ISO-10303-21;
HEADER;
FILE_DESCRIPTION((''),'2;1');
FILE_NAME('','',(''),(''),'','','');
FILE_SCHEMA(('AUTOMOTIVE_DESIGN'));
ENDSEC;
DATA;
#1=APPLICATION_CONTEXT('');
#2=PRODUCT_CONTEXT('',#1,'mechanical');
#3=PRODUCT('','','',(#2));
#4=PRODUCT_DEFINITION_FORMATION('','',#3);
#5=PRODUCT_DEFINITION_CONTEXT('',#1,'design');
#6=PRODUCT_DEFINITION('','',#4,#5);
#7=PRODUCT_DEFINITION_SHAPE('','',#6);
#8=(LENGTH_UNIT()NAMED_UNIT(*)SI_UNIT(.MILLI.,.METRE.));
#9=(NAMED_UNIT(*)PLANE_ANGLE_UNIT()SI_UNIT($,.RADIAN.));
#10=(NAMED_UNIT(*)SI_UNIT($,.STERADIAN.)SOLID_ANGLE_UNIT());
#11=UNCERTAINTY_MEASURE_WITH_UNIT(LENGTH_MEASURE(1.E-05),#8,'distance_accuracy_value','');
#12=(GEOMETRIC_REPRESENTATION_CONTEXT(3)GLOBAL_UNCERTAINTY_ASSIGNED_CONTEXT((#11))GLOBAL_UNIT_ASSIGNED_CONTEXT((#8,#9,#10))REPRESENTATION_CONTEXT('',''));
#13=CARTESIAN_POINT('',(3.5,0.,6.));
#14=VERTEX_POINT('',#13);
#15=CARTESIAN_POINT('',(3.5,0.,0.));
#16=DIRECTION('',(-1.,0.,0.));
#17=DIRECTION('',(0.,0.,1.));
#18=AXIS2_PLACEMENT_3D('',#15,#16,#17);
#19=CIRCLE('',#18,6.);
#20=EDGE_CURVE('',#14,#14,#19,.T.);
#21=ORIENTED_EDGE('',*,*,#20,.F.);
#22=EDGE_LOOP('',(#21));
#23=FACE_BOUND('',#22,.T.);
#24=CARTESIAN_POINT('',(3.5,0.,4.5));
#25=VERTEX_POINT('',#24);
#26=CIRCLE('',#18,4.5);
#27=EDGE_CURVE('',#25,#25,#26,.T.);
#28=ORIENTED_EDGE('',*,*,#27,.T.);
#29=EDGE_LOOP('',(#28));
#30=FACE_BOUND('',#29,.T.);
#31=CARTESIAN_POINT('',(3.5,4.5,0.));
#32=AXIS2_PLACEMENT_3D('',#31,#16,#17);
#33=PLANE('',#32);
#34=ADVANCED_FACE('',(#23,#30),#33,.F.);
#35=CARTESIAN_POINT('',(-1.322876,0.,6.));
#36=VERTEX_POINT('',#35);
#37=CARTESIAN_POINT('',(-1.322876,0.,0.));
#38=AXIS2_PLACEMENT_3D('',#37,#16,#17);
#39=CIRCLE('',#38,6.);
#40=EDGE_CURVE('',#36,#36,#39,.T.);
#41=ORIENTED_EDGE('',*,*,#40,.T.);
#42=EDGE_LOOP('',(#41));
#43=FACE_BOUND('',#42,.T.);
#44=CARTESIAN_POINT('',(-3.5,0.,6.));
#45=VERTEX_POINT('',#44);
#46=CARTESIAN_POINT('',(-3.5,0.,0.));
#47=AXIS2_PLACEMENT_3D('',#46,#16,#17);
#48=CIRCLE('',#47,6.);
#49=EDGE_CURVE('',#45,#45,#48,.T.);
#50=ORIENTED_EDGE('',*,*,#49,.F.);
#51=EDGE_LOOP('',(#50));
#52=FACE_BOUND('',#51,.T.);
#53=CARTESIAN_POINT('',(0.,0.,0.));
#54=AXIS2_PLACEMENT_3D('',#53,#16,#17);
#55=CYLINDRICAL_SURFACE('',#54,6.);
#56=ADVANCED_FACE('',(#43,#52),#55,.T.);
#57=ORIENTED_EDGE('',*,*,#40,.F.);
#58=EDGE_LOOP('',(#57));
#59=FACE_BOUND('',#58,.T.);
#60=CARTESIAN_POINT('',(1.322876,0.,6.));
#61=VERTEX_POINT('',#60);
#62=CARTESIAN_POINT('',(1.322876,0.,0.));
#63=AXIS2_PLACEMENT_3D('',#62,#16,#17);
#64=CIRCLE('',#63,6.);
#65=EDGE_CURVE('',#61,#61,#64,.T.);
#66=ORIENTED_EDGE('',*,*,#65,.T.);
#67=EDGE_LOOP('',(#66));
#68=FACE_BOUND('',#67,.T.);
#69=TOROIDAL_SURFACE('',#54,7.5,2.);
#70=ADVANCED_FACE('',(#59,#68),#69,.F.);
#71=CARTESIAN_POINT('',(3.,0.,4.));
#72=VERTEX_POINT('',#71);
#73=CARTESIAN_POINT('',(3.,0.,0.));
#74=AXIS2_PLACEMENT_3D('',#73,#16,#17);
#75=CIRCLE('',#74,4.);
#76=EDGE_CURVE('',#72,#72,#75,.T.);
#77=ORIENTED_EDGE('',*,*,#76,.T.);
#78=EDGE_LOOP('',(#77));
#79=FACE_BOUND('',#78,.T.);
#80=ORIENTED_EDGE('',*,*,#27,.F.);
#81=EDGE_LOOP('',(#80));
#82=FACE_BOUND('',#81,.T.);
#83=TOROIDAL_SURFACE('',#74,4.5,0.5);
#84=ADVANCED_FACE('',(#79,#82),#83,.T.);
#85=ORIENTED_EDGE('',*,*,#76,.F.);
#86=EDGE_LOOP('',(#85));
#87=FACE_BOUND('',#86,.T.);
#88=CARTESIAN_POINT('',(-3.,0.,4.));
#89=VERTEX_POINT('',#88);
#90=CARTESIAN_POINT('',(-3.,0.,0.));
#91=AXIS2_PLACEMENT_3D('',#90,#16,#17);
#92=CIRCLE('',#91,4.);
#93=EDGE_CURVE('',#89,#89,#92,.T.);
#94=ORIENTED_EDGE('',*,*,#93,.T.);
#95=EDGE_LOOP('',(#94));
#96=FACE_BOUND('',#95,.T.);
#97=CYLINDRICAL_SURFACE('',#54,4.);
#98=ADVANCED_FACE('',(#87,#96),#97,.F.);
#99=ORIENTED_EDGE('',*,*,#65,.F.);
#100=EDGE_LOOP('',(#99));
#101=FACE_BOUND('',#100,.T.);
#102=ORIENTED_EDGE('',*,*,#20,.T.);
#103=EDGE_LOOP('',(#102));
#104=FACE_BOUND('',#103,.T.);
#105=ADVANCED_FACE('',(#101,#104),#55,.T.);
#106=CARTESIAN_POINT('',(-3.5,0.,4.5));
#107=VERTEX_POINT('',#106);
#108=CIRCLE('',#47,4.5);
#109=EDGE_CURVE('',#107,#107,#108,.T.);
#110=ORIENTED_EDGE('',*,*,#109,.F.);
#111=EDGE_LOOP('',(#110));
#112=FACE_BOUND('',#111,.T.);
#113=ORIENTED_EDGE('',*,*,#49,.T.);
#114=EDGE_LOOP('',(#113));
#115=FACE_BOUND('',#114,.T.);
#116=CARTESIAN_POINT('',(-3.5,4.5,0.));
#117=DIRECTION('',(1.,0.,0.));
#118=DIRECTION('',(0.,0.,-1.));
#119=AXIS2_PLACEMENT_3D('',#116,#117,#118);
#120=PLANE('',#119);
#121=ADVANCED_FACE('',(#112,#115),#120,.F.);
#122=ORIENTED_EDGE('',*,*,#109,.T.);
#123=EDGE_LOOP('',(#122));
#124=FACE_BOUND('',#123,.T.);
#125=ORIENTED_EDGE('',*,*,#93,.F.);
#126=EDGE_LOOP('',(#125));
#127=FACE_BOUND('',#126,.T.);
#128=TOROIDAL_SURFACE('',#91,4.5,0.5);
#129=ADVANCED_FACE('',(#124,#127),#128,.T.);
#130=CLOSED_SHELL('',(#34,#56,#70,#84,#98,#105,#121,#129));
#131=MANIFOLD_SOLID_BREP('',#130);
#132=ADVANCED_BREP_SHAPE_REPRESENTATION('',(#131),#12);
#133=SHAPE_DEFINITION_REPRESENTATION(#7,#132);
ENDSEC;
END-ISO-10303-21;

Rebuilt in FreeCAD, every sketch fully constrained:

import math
import FreeCAD as App
import Part
import Sketcher

V = App.Vector

doc = App.newDocument("Part")
body = doc.addObject("PartDesign::Body", "Body")

# Sketch on XY plane
sketch1 = body.newObject("Sketcher::SketchObject", "Sketch")
sketch1.AttachmentSupport = (doc.getObject("XY_Plane"), [""])
sketch1.MapMode = "FlatFace"
sketch1.addGeometry(Part.LineSegment(V(-3, 4, 0), V(3, 4, 0)), False)
sketch1.addGeometry(Part.ArcOfCircle(Part.Circle(V(3, 4.5, 0), V(0, 0, 1), 0.5), math.radians(-90), math.radians(0)), False)
sketch1.addGeometry(Part.LineSegment(V(3.5, 4.5, 0), V(3.5, 6, 0)), False)
sketch1.addGeometry(Part.LineSegment(V(3.5, 6, 0), V(1.322876, 6, 0)), False)
sketch1.addGeometry(Part.ArcOfCircle(Part.Circle(V(0, 7.5, 0), V(0, 0, 1), 2), math.radians(-131.409622), math.radians(-48.590378)), False)
sketch1.addGeometry(Part.LineSegment(V(-1.322876, 6, 0), V(-3.5, 6, 0)), False)
sketch1.addGeometry(Part.LineSegment(V(-3.5, 6, 0), V(-3.5, 4.5, 0)), False)
sketch1.addGeometry(Part.ArcOfCircle(Part.Circle(V(-3, 4.5, 0), V(0, 0, 1), 0.5), math.radians(180), math.radians(270)), False)
sketch1.addConstraint(Sketcher.Constraint("Tangent", 0, 2, 1, 1))
sketch1.addConstraint(Sketcher.Constraint("Tangent", 1, 2, 2, 1))
sketch1.addConstraint(Sketcher.Constraint("Coincident", 2, 2, 3, 1))
sketch1.addConstraint(Sketcher.Constraint("Coincident", 3, 2, 4, 2))
sketch1.addConstraint(Sketcher.Constraint("Coincident", 4, 1, 5, 1))
sketch1.addConstraint(Sketcher.Constraint("Coincident", 5, 2, 6, 1))
sketch1.addConstraint(Sketcher.Constraint("Tangent", 6, 2, 7, 1))
sketch1.addConstraint(Sketcher.Constraint("Tangent", 7, 2, 0, 1))
sketch1.addConstraint(Sketcher.Constraint("Horizontal", 0))
sketch1.addConstraint(Sketcher.Constraint("Vertical", 2))
sketch1.addConstraint(Sketcher.Constraint("Horizontal", 3))
sketch1.addConstraint(Sketcher.Constraint("Horizontal", 5))
sketch1.addConstraint(Sketcher.Constraint("Vertical", 6))
sketch1.addConstraint(Sketcher.Constraint("Equal", 1, 7))
sketch1.addConstraint(Sketcher.Constraint("Symmetric", 3, 2, 4, 1, -2))
sketch1.addConstraint(Sketcher.Constraint("Equal", 3, 5))
sketch1.addConstraint(Sketcher.Constraint("Radius", 4, 2.0))
sketch1.addConstraint(Sketcher.Constraint("Radius", 1, 0.5))
sketch1.addConstraint(Sketcher.Constraint("DistanceX", 0, 1, 0, 2, 6.0))
sketch1.addConstraint(Sketcher.Constraint("DistanceY", 2, 1, 2, 2, 1.5))
sketch1.addConstraint(Sketcher.Constraint("DistanceY", -1, 1, 0, 2, 4.0))
sketch1.addConstraint(Sketcher.Constraint("DistanceY", 1, 3, 4, 3, 3.0))
revolution = body.newObject("PartDesign::Revolution", "Revolution")
revolution.Profile = sketch1
revolution.ReferenceAxis = (sketch1, ["H_Axis"])
revolution.Angle = 360

doc.recompute()
